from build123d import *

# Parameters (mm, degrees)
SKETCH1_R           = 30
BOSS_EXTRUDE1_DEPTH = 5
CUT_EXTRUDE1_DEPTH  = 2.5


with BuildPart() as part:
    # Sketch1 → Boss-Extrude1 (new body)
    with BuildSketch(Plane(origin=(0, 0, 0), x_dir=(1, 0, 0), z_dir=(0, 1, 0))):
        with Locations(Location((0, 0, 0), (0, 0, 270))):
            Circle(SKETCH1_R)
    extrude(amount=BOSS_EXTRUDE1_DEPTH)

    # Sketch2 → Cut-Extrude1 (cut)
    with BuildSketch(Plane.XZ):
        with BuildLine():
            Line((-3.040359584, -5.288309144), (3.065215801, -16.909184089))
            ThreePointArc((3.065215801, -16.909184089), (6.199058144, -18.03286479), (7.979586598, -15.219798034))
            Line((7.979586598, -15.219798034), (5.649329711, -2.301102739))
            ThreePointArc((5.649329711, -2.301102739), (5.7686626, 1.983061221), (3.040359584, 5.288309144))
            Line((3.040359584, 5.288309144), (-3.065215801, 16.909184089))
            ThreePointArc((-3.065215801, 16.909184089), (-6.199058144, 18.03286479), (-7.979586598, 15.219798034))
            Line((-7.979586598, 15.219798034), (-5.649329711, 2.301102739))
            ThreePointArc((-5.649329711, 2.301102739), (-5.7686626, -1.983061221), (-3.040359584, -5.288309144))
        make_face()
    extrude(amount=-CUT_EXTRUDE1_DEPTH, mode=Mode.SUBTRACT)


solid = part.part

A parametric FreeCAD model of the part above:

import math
import FreeCAD as App
import Part
import Sketcher

doc = App.newDocument("Part")
body = doc.addObject("PartDesign::Body", "Body")

# Sketch on XZ plane
sketch1 = body.newObject("Sketcher::SketchObject", "Sketch")
sketch1.AttachmentSupport = (doc.getObject("XZ_Plane"), [""])
sketch1.MapMode = "FlatFace"
sketch1.addGeometry(Part.Circle(App.Vector(0, 0, 0), App.Vector(0, 0, 1), 30), False)
sketch1.addConstraint(Sketcher.Constraint("Coincident", 0, 3, -1, 1))
sketch1.addConstraint(Sketcher.Constraint("Diameter", 0, 60.0))
pad1 = body.newObject("PartDesign::Pad", "Pad")
pad1.Profile = sketch1
pad1.Length = 5
pad1.Reversed = True

# Sketch on XZ plane
sketch2 = body.newObject("Sketcher::SketchObject", "Sketch001")
sketch2.AttachmentSupport = (doc.getObject("XZ_Plane"), [""])
sketch2.MapMode = "FlatFace"
sketch2.addGeometry(Part.LineSegment(App.Vector(-3, -5.3, 0), App.Vector(3.1, -16.9, 0)), False)
sketch2.addGeometry(Part.ArcOfCircle(Part.Circle(App.Vector(5.3, -15.5, 0), App.Vector(0, 0, 1), 2.7), math.radians(-148), math.radians(6)), False)
sketch2.addGeometry(Part.LineSegment(App.Vector(8, -15.2, 0), App.Vector(5.6, -2.3, 0)), False)
sketch2.addGeometry(Part.ArcOfCircle(Part.Circle(App.Vector(0, 0, 0), App.Vector(0, 0, 1), 6.1), math.radians(-22), math.radians(60)), False)
sketch2.addGeometry(Part.LineSegment(App.Vector(3, 5.3, 0), App.Vector(-3.1, 16.9, 0)), False)
sketch2.addGeometry(Part.ArcOfCircle(Part.Circle(App.Vector(-5.3, 15.5, 0), App.Vector(0, 0, 1), 2.7), math.radians(32), math.radians(186)), False)
sketch2.addGeometry(Part.LineSegment(App.Vector(-8, 15.2, 0), App.Vector(-5.6, 2.3, 0)), False)
sketch2.addGeometry(Part.ArcOfCircle(Part.Circle(App.Vector(0, 0, 0), App.Vector(0, 0, 1), 6.1), math.radians(158), math.radians(240)), False)
sketch2.addConstraint(Sketcher.Constraint("Coincident", 0, 2, 1, 1))
sketch2.addConstraint(Sketcher.Constraint("Coincident", 1, 2, 2, 1))
sketch2.addConstraint(Sketcher.Constraint("Coincident", 2, 2, 3, 1))
sketch2.addConstraint(Sketcher.Constraint("Coincident", 3, 2, 4, 1))
sketch2.addConstraint(Sketcher.Constraint("Coincident", 4, 2, 5, 1))
sketch2.addConstraint(Sketcher.Constraint("Coincident", 5, 2, 6, 1))
sketch2.addConstraint(Sketcher.Constraint("Coincident", 6, 2, 7, 1))
sketch2.addConstraint(Sketcher.Constraint("Coincident", 7, 2, 0, 1))
sketch2.addConstraint(Sketcher.Constraint("Coincident", 3, 3, -1, 1))
sketch2.addConstraint(Sketcher.Constraint("Coincident", 7, 3, -1, 1))
sketch2.addConstraint(Sketcher.Constraint("Equal", 1, 5))
sketch2.addConstraint(Sketcher.Constraint("Equal", 3, 7))
sketch2.addConstraint(Sketcher.Constraint("Symmetric", 1, 3, 5, 3, -1, 1))
sketch2.addConstraint(Sketcher.Constraint("Parallel", 0, 4))
sketch2.addConstraint(Sketcher.Constraint("Parallel", 2, 6))
sketch2.addConstraint(Sketcher.Constraint("Equal", 0, 2))
sketch2.addConstraint(Sketcher.Constraint("Equal", 2, 4))
sketch2.addConstraint(Sketcher.Constraint("Equal", 4, 6))
sketch2.addConstraint(Sketcher.Constraint("Radius", 3, 6.1))
sketch2.addConstraint(Sketcher.Constraint("Radius", 1, 2.6625))
sketch2.addConstraint(Sketcher.Constraint("DistanceX", 5, 3, 1, 3, 10.667001))
sketch2.addConstraint(Sketcher.Constraint("DistanceY", 1, 2, -1, 1, 15.219798))
sketch2.addConstraint(Sketcher.Constraint("DistanceY", 0, 2, 1, 3, 1.394199))
sketch2.addConstraint(Sketcher.Constraint("DistanceX", -1, 1, 2, 2, 5.64933))
sketch2.addConstraint(Sketcher.Constraint("DistanceX", -1, 1, 3, 2, 3.04036))
pocket1 = body.newObject("PartDesign::Pocket", "Pocket")
pocket1.Profile = sketch2
pocket1.Length = 2.5

doc.recompute()
